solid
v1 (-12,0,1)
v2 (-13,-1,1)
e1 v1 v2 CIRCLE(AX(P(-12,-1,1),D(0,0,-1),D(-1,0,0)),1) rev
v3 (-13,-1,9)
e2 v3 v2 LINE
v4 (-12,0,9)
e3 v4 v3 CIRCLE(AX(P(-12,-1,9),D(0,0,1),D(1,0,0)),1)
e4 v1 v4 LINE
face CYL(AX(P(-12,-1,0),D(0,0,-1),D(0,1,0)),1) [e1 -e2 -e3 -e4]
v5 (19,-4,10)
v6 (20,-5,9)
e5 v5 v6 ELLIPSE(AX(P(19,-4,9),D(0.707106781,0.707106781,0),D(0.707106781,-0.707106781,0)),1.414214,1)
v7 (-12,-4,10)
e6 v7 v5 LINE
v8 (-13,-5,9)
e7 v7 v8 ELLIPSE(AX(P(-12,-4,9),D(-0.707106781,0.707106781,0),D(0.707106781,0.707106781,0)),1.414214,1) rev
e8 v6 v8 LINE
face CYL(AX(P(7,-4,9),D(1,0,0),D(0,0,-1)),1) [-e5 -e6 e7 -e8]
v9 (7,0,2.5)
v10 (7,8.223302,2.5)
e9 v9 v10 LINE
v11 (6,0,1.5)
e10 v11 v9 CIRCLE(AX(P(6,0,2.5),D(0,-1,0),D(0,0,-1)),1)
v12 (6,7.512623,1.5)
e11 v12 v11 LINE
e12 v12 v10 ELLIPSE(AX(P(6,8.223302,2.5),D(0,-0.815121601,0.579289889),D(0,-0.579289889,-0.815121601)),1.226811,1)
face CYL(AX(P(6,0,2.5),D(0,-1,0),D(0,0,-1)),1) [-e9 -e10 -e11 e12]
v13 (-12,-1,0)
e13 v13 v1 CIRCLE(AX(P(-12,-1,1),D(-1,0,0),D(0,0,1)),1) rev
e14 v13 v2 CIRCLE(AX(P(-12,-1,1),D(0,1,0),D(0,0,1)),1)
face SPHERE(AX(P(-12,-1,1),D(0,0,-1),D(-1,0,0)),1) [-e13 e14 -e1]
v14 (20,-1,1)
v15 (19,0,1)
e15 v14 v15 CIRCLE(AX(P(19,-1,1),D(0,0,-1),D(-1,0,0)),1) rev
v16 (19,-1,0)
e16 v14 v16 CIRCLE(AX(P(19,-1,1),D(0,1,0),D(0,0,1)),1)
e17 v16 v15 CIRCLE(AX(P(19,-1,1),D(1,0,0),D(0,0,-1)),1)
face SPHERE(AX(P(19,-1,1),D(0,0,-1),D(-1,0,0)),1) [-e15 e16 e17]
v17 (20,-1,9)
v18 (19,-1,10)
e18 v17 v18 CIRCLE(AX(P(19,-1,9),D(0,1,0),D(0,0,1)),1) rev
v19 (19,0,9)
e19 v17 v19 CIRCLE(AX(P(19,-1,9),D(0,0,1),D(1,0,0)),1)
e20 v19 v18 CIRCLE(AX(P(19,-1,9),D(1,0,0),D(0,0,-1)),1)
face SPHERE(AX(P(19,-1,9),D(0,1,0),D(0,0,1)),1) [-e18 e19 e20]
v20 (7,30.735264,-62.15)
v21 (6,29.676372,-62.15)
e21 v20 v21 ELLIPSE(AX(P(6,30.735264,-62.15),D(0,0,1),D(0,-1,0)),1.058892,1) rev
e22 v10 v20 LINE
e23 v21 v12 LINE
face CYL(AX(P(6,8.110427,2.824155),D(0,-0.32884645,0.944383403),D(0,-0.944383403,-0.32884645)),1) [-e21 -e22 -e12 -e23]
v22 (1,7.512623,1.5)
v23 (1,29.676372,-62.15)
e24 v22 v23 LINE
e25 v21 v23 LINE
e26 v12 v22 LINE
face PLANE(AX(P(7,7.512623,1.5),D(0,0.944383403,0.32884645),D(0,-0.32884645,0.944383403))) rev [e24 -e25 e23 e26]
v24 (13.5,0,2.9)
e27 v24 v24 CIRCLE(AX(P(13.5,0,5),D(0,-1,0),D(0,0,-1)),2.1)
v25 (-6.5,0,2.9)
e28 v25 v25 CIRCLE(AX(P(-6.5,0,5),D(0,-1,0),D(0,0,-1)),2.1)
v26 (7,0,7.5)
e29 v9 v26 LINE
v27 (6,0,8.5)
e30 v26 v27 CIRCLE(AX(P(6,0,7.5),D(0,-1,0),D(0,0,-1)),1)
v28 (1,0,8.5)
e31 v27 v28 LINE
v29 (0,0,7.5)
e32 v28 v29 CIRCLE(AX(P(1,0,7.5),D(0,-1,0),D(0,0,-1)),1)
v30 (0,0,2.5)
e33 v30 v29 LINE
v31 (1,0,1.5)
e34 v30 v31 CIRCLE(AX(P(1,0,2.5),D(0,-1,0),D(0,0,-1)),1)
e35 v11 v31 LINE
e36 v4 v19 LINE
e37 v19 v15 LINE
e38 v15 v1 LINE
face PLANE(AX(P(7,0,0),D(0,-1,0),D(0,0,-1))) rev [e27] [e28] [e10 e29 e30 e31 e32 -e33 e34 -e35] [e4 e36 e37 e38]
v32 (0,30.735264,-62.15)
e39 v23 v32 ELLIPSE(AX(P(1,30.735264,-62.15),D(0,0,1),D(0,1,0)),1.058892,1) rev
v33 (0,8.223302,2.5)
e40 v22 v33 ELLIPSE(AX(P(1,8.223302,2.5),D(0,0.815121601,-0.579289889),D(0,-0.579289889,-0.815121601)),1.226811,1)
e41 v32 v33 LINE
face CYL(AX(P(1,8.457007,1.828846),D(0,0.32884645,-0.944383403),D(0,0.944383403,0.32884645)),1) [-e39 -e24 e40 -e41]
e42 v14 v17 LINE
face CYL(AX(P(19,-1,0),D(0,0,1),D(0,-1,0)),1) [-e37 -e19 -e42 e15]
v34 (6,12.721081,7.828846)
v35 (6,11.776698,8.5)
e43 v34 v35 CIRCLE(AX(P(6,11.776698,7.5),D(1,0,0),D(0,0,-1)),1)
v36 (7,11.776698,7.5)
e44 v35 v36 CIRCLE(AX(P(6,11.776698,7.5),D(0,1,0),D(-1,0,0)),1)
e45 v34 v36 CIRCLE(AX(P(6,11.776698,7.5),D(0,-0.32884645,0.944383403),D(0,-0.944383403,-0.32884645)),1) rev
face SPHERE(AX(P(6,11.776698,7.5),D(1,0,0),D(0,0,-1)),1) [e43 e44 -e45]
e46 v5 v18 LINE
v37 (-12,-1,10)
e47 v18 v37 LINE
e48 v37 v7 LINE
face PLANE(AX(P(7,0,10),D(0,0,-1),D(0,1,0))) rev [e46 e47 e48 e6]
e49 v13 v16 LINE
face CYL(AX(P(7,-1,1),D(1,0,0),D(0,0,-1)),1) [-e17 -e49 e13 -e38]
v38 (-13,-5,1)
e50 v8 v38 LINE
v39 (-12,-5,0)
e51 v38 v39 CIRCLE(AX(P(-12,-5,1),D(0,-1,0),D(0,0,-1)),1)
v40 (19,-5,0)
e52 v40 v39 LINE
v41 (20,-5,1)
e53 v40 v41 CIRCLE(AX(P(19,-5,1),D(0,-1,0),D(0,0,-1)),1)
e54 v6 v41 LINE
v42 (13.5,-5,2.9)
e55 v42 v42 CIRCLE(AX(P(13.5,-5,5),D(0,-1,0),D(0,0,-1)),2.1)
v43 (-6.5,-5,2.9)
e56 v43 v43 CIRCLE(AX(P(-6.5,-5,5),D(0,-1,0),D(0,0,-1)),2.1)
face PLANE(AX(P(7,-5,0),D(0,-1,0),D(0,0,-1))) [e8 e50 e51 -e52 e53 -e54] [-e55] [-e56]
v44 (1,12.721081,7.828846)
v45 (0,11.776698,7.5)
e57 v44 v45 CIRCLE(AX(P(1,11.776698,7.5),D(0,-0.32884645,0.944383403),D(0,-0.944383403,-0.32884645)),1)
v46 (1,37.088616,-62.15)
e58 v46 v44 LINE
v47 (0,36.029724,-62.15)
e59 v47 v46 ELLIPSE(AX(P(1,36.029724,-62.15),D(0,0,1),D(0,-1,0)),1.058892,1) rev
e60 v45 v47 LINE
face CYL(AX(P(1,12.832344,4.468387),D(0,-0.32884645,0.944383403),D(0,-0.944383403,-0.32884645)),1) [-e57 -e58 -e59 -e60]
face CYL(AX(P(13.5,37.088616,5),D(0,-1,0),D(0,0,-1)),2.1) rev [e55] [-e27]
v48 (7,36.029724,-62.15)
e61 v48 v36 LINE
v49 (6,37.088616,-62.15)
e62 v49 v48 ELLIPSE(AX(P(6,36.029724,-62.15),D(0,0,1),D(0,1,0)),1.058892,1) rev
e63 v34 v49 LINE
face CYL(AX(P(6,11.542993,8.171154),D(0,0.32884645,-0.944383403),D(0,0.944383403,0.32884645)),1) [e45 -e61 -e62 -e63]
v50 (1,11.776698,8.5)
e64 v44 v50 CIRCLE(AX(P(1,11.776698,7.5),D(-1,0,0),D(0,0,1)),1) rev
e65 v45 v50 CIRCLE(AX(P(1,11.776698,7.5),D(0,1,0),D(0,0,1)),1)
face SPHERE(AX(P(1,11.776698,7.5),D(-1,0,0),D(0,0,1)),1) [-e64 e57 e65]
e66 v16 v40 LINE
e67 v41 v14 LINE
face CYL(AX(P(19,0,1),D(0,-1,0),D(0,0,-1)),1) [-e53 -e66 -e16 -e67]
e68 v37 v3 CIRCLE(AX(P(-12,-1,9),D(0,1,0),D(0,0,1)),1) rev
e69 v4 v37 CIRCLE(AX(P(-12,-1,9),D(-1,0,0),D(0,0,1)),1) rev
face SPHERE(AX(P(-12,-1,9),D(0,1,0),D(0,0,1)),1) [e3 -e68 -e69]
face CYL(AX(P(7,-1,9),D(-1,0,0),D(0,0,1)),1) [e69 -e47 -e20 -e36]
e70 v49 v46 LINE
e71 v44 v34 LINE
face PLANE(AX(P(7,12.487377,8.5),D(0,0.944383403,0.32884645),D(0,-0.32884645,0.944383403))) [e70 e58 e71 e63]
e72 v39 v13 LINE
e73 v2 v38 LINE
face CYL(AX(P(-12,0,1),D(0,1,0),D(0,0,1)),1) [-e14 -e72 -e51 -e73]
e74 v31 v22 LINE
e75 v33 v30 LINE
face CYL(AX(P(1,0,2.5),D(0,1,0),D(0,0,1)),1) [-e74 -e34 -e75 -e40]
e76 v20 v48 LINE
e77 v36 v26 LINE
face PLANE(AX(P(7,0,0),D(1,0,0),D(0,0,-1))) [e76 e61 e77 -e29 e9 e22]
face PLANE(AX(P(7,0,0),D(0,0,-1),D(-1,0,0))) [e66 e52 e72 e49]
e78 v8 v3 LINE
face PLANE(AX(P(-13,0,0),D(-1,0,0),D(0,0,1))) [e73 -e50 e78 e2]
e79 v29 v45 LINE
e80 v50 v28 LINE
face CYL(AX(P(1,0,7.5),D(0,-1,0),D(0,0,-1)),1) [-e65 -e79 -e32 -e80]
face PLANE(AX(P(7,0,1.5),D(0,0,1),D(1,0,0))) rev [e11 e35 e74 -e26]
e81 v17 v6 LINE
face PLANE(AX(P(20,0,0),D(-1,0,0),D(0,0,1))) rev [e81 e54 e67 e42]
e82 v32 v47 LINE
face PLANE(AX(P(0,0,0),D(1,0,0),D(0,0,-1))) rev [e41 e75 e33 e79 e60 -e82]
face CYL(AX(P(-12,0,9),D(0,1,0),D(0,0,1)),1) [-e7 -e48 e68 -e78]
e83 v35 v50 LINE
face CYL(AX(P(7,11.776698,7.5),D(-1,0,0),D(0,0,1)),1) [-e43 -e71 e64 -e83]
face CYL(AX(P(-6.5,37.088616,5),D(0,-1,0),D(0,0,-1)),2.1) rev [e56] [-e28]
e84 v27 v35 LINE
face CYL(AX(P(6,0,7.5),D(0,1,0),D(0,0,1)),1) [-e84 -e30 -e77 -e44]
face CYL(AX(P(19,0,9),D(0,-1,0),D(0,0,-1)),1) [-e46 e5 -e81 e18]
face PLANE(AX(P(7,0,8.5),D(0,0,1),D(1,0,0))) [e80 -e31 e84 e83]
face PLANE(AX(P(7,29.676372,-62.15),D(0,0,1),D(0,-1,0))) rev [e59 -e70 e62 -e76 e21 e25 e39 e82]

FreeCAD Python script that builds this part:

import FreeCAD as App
import Part
import Sketcher
from FreeCAD import Vector


def edges_at(feature, points):
    """Names of the edges that pass closest to the given points."""
    edges = feature.Shape.Edges
    near = lambda p: min(range(len(edges)), key=lambda i: edges[i].distToShape(Part.Vertex(*p))[0])
    return sorted({f"Edge{near(p) + 1}" for p in points})


def add_polygon(sketch, points):
    """Adds a closed chain of lines whose ends are joined by coincident constraints."""
    first, n = sketch.GeometryCount, len(points)
    for a, b in zip(points, points[1:] + points[:1]):
        sketch.addGeometry(Part.LineSegment(App.Vector(*a, 0), App.Vector(*b, 0)), False)
    for i in range(n):
        sketch.addConstraint(Sketcher.Constraint("Coincident", first + i, 2, first + (i + 1) % n, 1))

doc = App.newDocument("Part")
body = doc.addObject("PartDesign::Body", "Body")

sketch1 = body.newObject("Sketcher::SketchObject", "Sketch")
sketch1.AttachmentSupport = (doc.getObject("YZ_Plane"), [""])
sketch1.MapMode = "FlatFace"
add_polygon(sketch1, [(-5, 0), (0, 0), (0, 1.5), (7.512623, 1.5), (29.676372, -62.15), (37.088616, -62.15), (36.687836, -60.999037), (12.487377, 8.5), (0, 8.5), (0, 10), (-5, 10)])
sketch1.addConstraint([
    Sketcher.Constraint("Horizontal", 0),
    Sketcher.Constraint("Vertical", 1),
    Sketcher.Constraint("Horizontal", 2),
    Sketcher.Constraint("Horizontal", 4),
    Sketcher.Constraint("Horizontal", 7),
    Sketcher.Constraint("Vertical", 8),
    Sketcher.Constraint("Horizontal", 9),
    Sketcher.Constraint("Vertical", 10),
    Sketcher.Constraint("Coincident", 0, 2, -1, 1),
    Sketcher.Constraint("PointOnObject", 7, 2, -2),
    Sketcher.Constraint("Parallel", 3, 5),
    Sketcher.Constraint("Parallel", 5, 6),
    Sketcher.Constraint("Equal", 1, 8),
    Sketcher.Constraint("DistanceX", 0, 1, 0, 2, 5.0),
    Sketcher.Constraint("DistanceY", 10, 2, 10, 1, 10.0),
    Sketcher.Constraint("DistanceY", 1, 1, 1, 2, 1.5),
    Sketcher.Constraint("DistanceY", 3, 2, -1, 1, 62.15),
    Sketcher.Constraint("DistanceX", 2, 1, 2, 2, 7.512623),
    Sketcher.Constraint("DistanceX", 4, 1, 4, 2, 7.412244),
    Sketcher.Constraint("DistanceX", 7, 2, 7, 1, 12.487377),
    Sketcher.Constraint("DistanceX", 5, 2, 4, 2, 0.40078),
])
pad1 = body.newObject("PartDesign::Pad", "Pad")
pad1.Profile = sketch1
pad1.Length = 7

sketch2 = body.newObject("Sketcher::SketchObject", "Sketch001")
sketch2.AttachmentSupport = (doc.getObject("YZ_Plane"), [""])
sketch2.MapMode = "FlatFace"
sketch2.AttachmentOffset = App.Placement(Vector(0, 0, 7), App.Rotation())
add_polygon(sketch2, [(-5, 10), (-5, 0), (0, 0), (0, 10)])
sketch2.addConstraint([
    Sketcher.Constraint("Vertical", 0),
    Sketcher.Constraint("Horizontal", 1),
    Sketcher.Constraint("Vertical", 2),
    Sketcher.Constraint("Horizontal", 3),
    Sketcher.Constraint("Coincident", 1, 2, -1, 1),
    Sketcher.Constraint("DistanceX", 1, 1, 1, 2, 5.0),
    Sketcher.Constraint("DistanceY", 0, 2, 0, 1, 10.0),
])
pad2 = body.newObject("PartDesign::Pad", "Pad001")
pad2.Profile = sketch2
pad2.Type = "TwoLengths"
pad2.Length = 13
pad2.Length2 = 20

sketch3 = body.newObject("Sketcher::SketchObject", "Sketch002")
sketch3.AttachmentSupport = (doc.getObject("XZ_Plane"), [""])
sketch3.MapMode = "FlatFace"
sketch3.AttachmentOffset = App.Placement(Vector(0, 0, 5), App.Rotation())
sketch3.addGeometry([
    Part.Circle(Vector(-6.5, 5, 0), Vector(0, 0, 1), 2.1),
    Part.Circle(Vector(13.5, 5, 0), Vector(0, 0, 1), 2.1),
], False)
sketch3.addConstraint([
    Sketcher.Constraint("Equal", 0, 1),
    Sketcher.Constraint("Horizontal", 0, 3, 1, 3),
    Sketcher.Constraint("Diameter", 0, 4.2),
    Sketcher.Constraint("DistanceY", -1, 1, 0, 3, 5.0),
    Sketcher.Constraint("DistanceX", 0, 3, 1, 3, 20.0),
    Sketcher.Constraint("DistanceX", 0, 3, -1, 1, 6.5),
])
pocket1 = body.newObject("PartDesign::Pocket", "Pocket")
pocket1.Profile = sketch3
pocket1.Type = "ThroughAll"
doc.recompute()

fillet = body.newObject("PartDesign::Fillet", "Fillet")
fillet.Base = (pocket1, edges_at(pocket1, [
    (0, 6.244, 8.5),
    (0, 24.588, -26.25),
    (0, 18.594, -30.325),
    (0, 3.756, 1.5),
    (3.5, 12.487, 8.5),
    (3.5, 0, 0),
    (3.5, -5, 10),
    (3.5, 0, 10),
    (7, 3.756, 1.5),
    (7, 18.594, -30.325),
    (-13, -2.5, 10),
    (7, 24.588, -26.25),
    (-13, 0, 5),
    (-13, -2.5, 0),
    (20, -2.5, 0),
    (20, 0, 5),
    (20, -2.5, 10),
    (7, 6.244, 8.5),
]))
fillet.Radius = 1

doc.recompute()
